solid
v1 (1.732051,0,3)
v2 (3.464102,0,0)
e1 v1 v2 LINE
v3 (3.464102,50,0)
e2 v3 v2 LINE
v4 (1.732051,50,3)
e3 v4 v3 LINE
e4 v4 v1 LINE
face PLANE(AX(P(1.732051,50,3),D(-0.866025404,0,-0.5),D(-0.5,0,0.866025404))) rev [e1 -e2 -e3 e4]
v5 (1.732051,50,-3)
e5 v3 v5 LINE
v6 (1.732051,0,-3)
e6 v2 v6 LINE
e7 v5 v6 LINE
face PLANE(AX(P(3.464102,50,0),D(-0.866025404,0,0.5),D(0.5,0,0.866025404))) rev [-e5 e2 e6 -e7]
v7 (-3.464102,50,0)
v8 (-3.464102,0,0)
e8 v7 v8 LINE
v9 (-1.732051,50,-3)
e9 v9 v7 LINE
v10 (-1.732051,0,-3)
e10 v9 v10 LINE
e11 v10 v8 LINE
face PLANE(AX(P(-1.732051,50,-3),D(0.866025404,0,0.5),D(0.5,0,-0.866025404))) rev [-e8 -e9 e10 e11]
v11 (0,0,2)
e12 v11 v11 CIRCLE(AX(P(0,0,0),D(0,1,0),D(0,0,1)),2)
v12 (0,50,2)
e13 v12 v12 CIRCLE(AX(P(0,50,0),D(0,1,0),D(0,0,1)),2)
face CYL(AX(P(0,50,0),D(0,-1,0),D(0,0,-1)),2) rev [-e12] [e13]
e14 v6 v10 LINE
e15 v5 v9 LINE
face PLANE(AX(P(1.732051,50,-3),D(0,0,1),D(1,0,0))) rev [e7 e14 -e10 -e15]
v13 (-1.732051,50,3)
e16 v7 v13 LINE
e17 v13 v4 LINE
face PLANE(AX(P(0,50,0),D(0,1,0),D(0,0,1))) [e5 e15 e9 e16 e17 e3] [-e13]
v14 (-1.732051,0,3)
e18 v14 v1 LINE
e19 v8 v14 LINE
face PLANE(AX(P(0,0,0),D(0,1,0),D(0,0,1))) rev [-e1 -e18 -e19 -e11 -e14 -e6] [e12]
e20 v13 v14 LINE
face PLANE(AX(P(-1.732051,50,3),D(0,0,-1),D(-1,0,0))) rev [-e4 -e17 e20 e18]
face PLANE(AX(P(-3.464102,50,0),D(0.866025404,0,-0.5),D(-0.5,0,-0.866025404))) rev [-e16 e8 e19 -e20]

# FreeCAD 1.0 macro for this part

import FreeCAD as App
import Part
import Sketcher
Q = App.Units.Quantity

doc = App.newDocument("Part")
body = doc.addObject("PartDesign::Body", "Body")

# Sketch on XZ plane
sketch1 = doc.addObject("Sketcher::SketchObject", "Sketch")
body.addObject(sketch1)
sketch1.AttachmentSupport = (doc.XZ_Plane, [""])
sketch1.MapMode = "FlatFace"
sketch1.addGeometry(Part.LineSegment(App.Vector(1.7, -3, 0), App.Vector(-1.7, -3, 0)), False)
sketch1.addGeometry(Part.LineSegment(App.Vector(-1.7, -3, 0), App.Vector(-3.5, 0, 0)), False)
sketch1.addGeometry(Part.LineSegment(App.Vector(-3.5, 0, 0), App.Vector(-1.7, 3, 0)), False)
sketch1.addGeometry(Part.LineSegment(App.Vector(-1.7, 3, 0), App.Vector(1.7, 3, 0)), False)
sketch1.addGeometry(Part.LineSegment(App.Vector(1.7, 3, 0), App.Vector(3.5, 0, 0)), False)
sketch1.addGeometry(Part.LineSegment(App.Vector(3.5, 0, 0), App.Vector(1.7, -3, 0)), False)
sketch1.addGeometry(Part.Circle(App.Vector(0, 0, 0), App.Vector(0, 0, 1), 2), False)
sketch1.addConstraint(Sketcher.Constraint("Coincident", 0, 2, 1, 1))
sketch1.addConstraint(Sketcher.Constraint("Coincident", 1, 2, 2, 1))
sketch1.addConstraint(Sketcher.Constraint("Coincident", 2, 2, 3, 1))
sketch1.addConstraint(Sketcher.Constraint("Coincident", 3, 2, 4, 1))
sketch1.addConstraint(Sketcher.Constraint("Coincident", 4, 2, 5, 1))
sketch1.addConstraint(Sketcher.Constraint("Coincident", 5, 2, 0, 1))
sketch1.addConstraint(Sketcher.Constraint("Horizontal", 0))
sketch1.addConstraint(Sketcher.Constraint("Horizontal", 3))
sketch1.addConstraint(Sketcher.Constraint("Coincident", 6, 3, -1, 1))
sketch1.addConstraint(Sketcher.Constraint("Symmetric", 0, 2, 3, 2, -1, 1))
sketch1.addConstraint(Sketcher.Constraint("Symmetric", 1, 2, 4, 2, -1, 1))
sketch1.addConstraint(Sketcher.Constraint("PointOnObject", 1, 2, -1))
sketch1.addConstraint(Sketcher.Constraint("Parallel", 2, 5))
sketch1.addConstraint(Sketcher.Constraint("Vertical", 0, 2, 2, 2))
sketch1.addConstraint(Sketcher.Constraint("Diameter", 6, 4.0))
sketch1.addConstraint(Sketcher.Constraint("Angle", 1, Q("120 deg")))
sketch1.addConstraint(Sketcher.Constraint("DistanceY", 0, 2, -1, 1, 3.0))
sketch1.addConstraint(Sketcher.Constraint("DistanceX", 0, 2, 0, 1, 3.464102))
pad1 = doc.addObject("PartDesign::Pad", "Pad")
body.addObject(pad1)
pad1.Profile = sketch1
pad1.Length = 50
pad1.Reversed = True

doc.recompute()
